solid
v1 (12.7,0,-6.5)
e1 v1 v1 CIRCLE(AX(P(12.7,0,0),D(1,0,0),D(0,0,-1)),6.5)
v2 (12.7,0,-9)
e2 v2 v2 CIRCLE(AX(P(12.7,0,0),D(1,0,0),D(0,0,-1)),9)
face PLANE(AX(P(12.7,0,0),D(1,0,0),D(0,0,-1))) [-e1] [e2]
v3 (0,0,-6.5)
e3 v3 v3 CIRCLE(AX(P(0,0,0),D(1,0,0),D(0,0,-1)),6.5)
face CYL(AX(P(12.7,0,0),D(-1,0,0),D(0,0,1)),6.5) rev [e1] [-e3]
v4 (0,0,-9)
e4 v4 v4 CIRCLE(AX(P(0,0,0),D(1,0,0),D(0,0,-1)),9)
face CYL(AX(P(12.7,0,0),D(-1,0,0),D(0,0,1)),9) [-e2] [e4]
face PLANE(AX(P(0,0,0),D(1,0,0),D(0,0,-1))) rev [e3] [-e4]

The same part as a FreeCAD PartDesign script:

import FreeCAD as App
import Part
import Sketcher

V = App.Vector
Q = App.Units.Quantity

doc = App.newDocument("Part")
body = doc.addObject("PartDesign::Body", "Body")

# Sketch on YZ plane
sketch1 = body.newObject("Sketcher::SketchObject", "Sketch")
sketch1.AttachmentSupport = (doc.getObject("YZ_Plane"), [""])
sketch1.MapMode = "FlatFace"
sketch1.addGeometry(Part.Circle(V(0, 0, 0), V(0, 0, 1), 9), False)
sketch1.addGeometry(Part.Circle(V(0, 0, 0), V(0, 0, 1), 6), False)
sketch1.addConstraint(Sketcher.Constraint("Coincident", 0, 3, -1, 1))
sketch1.addConstraint(Sketcher.Constraint("Coincident", 1, 3, -1, 1))
sketch1.addConstraint(Sketcher.Constraint("Diameter", 0, Q("18 mm")))
sketch1.addConstraint(Sketcher.Constraint("Diameter", 1, Q("13 mm")))
pad1 = body.newObject("PartDesign::Pad", "Pad")
pad1.Profile = sketch1
pad1.Length = 12.7

doc.recompute()
